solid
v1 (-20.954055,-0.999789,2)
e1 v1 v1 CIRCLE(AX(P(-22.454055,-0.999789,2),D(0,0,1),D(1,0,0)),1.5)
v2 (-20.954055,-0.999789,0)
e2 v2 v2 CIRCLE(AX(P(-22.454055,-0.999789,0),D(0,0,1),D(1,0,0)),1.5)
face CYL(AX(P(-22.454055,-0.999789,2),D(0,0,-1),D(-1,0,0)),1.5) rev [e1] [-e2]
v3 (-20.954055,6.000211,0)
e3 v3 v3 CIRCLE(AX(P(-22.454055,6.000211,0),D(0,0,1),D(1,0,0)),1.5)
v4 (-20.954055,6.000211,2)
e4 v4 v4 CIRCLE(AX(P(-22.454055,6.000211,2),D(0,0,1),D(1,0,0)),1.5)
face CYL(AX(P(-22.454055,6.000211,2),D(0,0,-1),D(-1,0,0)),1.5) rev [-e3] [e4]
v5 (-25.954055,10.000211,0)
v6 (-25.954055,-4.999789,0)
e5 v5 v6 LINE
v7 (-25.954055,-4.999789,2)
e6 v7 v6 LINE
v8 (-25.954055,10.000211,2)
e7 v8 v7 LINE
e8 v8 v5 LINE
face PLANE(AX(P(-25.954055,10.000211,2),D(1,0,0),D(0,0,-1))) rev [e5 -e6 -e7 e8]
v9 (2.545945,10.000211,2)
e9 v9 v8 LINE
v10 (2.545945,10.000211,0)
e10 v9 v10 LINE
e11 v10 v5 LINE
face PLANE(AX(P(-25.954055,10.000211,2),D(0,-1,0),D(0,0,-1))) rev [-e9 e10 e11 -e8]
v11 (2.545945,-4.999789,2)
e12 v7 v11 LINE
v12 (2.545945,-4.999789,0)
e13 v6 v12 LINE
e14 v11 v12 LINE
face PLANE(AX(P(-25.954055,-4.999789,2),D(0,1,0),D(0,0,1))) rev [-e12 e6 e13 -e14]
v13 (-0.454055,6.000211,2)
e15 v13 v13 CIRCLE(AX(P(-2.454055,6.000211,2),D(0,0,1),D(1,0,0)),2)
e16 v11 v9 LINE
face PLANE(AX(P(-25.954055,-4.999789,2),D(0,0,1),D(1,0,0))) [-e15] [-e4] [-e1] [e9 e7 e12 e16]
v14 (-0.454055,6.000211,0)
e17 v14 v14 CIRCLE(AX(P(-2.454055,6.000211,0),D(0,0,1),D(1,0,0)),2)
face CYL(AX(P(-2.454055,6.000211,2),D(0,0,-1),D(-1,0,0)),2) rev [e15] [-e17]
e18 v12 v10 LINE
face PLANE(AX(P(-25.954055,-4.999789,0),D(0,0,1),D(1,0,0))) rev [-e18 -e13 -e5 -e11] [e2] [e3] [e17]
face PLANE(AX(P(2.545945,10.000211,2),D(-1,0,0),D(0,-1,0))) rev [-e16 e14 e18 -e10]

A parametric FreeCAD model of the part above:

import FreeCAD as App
import Part
import Sketcher

doc = App.newDocument("Part")
body = doc.addObject("PartDesign::Body", "Body")

sketch1 = body.newObject("Sketcher::SketchObject", "Sketch")
sketch1.AttachmentSupport = (doc.getObject("XY_Plane"), [""])
sketch1.MapMode = "FlatFace"
sketch1.addGeometry([
    Part.LineSegment(App.Vector(-26, 10, 0), App.Vector(-26, -5, 0)),
    Part.LineSegment(App.Vector(-26, -5, 0), App.Vector(2.5, -5, 0)),
    Part.LineSegment(App.Vector(2.5, -5, 0), App.Vector(2.5, 10, 0)),
    Part.LineSegment(App.Vector(2.5, 10, 0), App.Vector(-26, 10, 0)),
    Part.Circle(App.Vector(-22.5, -1, 0), App.Vector(0, 0, 1), 1.5),
    Part.Circle(App.Vector(-22.5, 6, 0), App.Vector(0, 0, 1), 1.5),
    Part.Circle(App.Vector(-2.5, 6, 0), App.Vector(0, 0, 1), 2),
], False)
sketch1.addConstraint([
    Sketcher.Constraint("Coincident", 0, 2, 1, 1),
    Sketcher.Constraint("Coincident", 1, 2, 2, 1),
    Sketcher.Constraint("Coincident", 2, 2, 3, 1),
    Sketcher.Constraint("Coincident", 3, 2, 0, 1),
    Sketcher.Constraint("Vertical", 0),
    Sketcher.Constraint("Horizontal", 1),
    Sketcher.Constraint("Vertical", 2),
    Sketcher.Constraint("Horizontal", 3),
    Sketcher.Constraint("Equal", 4, 5),
    Sketcher.Constraint("Horizontal", 5, 3, 6, 3),
    Sketcher.Constraint("Vertical", 4, 3, 5, 3),
    Sketcher.Constraint("Diameter", 4, 3.0),
    Sketcher.Constraint("Diameter", 6, 4.0),
    Sketcher.Constraint("DistanceY", 0, 2, 0, 1, 15.0),
    Sketcher.Constraint("DistanceX", 1, 1, 1, 2, 28.5),
    Sketcher.Constraint("DistanceY", 4, 3, 5, 3, 7.0),
    Sketcher.Constraint("DistanceX", 5, 3, 6, 3, 20.0),
    Sketcher.Constraint("DistanceY", 0, 2, 4, 3, 4.0),
    Sketcher.Constraint("DistanceX", 6, 3, 1, 2, 5.0),
    Sketcher.Constraint("DistanceY", 4, 3, -1, 1, 0.999789),
    Sketcher.Constraint("DistanceX", 4, 3, -1, 1, 22.454055),
])
pad1 = body.newObject("PartDesign::Pad", "Pad")
pad1.Profile = sketch1
pad1.Length = 2

doc.recompute()
